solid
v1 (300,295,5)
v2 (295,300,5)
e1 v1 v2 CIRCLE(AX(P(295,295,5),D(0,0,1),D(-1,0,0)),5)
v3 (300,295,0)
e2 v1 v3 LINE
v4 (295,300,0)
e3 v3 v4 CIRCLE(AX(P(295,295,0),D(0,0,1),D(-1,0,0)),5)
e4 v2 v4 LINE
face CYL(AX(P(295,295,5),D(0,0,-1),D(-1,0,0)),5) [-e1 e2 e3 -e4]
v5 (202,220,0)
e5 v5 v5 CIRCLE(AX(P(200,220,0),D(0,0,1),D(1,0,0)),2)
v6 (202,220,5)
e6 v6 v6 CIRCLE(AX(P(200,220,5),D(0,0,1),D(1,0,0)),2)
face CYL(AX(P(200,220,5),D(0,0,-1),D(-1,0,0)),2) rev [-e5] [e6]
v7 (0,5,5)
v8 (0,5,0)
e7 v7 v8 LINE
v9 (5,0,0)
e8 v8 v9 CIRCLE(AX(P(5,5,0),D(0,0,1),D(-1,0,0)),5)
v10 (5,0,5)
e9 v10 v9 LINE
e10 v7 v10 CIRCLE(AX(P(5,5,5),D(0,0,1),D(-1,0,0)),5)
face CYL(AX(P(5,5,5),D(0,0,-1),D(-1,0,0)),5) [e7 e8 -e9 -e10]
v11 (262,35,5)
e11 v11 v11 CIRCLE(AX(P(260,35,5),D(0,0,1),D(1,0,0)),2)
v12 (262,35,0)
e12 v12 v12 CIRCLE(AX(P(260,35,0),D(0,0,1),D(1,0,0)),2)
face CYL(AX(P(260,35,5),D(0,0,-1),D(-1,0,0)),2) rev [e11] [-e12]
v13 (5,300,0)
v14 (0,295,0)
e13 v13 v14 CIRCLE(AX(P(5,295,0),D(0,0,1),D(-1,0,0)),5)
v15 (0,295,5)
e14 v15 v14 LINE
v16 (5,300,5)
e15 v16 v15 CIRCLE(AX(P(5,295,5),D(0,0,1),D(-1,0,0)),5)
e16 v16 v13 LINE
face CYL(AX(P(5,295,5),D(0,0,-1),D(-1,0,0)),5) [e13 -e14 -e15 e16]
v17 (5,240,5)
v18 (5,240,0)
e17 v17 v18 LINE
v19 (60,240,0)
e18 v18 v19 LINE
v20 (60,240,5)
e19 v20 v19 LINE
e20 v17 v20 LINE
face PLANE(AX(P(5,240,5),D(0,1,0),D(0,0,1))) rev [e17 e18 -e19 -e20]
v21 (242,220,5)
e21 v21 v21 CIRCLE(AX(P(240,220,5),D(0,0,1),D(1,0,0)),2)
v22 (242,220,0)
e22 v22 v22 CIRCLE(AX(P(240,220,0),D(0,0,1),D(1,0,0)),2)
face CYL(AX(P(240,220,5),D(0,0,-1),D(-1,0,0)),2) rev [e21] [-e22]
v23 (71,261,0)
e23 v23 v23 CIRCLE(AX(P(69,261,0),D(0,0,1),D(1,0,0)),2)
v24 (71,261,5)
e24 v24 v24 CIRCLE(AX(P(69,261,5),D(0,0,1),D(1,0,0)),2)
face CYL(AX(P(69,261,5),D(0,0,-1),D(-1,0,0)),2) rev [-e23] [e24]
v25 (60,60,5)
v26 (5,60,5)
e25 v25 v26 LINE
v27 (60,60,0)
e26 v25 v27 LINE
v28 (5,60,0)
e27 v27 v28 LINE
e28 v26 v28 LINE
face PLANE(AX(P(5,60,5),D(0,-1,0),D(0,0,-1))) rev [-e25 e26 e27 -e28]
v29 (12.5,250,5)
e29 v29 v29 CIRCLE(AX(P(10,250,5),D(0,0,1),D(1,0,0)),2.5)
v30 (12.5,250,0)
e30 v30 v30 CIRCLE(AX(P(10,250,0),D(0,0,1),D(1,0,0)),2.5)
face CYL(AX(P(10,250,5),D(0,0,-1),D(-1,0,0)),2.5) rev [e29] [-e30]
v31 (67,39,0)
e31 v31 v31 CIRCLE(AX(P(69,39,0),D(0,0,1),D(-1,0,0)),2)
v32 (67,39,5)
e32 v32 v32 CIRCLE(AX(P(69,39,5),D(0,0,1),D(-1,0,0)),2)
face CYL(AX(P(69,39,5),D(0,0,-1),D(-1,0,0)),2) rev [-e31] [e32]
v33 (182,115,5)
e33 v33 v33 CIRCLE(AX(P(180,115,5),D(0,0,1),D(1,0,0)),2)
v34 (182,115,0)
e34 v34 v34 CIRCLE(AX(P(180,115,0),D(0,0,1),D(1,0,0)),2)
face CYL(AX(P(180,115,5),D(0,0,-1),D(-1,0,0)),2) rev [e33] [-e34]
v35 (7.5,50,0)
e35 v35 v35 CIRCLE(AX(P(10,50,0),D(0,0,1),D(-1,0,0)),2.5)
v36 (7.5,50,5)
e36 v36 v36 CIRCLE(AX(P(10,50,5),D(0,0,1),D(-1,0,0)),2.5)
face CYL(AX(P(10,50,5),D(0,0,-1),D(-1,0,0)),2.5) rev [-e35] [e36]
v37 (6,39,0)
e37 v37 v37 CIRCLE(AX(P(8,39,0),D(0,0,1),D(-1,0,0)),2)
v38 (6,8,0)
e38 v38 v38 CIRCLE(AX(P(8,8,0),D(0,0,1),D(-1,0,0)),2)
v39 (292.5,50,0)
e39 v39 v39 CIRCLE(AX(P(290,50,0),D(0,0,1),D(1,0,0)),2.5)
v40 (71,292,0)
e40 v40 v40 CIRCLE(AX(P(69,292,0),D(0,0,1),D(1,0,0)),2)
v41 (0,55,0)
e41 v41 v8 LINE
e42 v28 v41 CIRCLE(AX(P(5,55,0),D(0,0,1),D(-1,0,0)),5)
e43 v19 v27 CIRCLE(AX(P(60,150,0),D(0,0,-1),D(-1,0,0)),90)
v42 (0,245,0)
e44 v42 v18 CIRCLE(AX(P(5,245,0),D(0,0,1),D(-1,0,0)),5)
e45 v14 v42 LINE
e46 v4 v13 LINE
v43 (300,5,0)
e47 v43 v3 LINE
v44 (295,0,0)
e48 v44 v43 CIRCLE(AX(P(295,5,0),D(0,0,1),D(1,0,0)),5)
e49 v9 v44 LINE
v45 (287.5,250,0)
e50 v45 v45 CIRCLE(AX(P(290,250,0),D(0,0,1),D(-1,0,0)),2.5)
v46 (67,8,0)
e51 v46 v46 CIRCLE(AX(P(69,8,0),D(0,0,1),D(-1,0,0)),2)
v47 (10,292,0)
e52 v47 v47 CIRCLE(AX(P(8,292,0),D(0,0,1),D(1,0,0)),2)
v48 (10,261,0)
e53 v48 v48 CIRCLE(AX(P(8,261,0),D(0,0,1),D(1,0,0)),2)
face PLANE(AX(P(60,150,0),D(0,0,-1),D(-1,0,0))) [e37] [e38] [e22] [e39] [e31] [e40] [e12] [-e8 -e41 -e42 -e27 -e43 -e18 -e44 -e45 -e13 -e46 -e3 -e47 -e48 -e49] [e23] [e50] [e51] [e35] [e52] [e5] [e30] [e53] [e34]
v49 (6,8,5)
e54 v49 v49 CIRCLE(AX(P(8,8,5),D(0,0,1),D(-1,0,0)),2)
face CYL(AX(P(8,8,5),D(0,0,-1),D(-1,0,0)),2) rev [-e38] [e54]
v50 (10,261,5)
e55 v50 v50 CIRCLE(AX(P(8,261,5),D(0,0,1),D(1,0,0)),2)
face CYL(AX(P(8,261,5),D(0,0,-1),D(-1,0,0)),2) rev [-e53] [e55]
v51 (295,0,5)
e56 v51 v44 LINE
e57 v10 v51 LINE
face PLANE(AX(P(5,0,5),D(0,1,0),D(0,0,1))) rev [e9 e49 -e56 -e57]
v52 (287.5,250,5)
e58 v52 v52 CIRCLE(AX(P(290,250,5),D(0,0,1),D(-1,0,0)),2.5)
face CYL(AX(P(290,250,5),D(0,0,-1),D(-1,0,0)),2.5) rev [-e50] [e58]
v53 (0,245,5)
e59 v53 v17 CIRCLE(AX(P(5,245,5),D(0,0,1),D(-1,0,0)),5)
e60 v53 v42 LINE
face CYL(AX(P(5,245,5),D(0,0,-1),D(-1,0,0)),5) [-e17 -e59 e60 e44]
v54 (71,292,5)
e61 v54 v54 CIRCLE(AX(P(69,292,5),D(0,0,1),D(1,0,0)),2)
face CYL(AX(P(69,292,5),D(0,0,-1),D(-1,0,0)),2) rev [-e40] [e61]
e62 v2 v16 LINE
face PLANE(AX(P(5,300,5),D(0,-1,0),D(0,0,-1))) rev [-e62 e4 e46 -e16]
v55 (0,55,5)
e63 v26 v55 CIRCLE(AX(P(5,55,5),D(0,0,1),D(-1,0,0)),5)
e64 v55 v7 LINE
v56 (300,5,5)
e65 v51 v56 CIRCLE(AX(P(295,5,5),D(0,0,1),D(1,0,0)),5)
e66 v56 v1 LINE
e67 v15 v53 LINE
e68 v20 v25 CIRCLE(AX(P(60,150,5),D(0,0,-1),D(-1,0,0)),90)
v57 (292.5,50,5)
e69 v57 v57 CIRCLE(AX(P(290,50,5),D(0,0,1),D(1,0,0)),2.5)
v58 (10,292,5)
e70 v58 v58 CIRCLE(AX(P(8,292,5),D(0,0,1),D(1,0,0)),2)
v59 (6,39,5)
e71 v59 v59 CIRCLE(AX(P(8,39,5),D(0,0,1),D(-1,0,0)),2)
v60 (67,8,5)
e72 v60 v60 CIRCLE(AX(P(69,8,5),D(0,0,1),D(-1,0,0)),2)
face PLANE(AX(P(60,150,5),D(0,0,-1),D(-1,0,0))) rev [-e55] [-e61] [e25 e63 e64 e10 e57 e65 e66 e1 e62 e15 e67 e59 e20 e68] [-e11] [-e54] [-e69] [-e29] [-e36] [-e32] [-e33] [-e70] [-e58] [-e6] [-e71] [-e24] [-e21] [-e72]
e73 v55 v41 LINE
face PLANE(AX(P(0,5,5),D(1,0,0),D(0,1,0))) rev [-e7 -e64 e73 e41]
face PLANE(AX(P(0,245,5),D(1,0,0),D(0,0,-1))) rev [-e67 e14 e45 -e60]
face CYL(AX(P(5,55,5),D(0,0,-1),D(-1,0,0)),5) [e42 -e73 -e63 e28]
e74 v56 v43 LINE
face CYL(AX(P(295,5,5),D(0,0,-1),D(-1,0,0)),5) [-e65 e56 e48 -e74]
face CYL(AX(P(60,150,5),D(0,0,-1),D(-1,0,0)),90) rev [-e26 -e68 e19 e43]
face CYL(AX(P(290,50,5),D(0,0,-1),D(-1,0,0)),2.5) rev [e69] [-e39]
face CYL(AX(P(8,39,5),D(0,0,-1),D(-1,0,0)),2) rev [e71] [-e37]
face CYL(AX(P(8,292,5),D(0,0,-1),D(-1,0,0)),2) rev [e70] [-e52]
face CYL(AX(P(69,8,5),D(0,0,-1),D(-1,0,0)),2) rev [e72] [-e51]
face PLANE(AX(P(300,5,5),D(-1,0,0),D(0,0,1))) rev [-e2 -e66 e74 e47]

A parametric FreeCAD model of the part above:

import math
import FreeCAD as App
import Part
import Sketcher
from FreeCAD import Vector

doc = App.newDocument("Part")
body = doc.addObject("PartDesign::Body", "Body")

# Sketch on XY plane
sketch1 = body.newObject("Sketcher::SketchObject", "Sketch")
sketch1.AttachmentSupport = (doc.getObject("XY_Plane"), [""])
sketch1.MapMode = "FlatFace"
sketch1.addGeometry([
    Part.LineSegment(Vector(5, 0, 0), Vector(295, 0, 0)),  # 0
    Part.ArcOfCircle(Part.Circle(Vector(295, 5, 0), Vector(0, 0, 1), 5), math.radians(-90), math.radians(0)),  # 1
    Part.LineSegment(Vector(300, 5, 0), Vector(300, 295, 0)),  # 2
    Part.ArcOfCircle(Part.Circle(Vector(295, 295, 0), Vector(0, 0, 1), 5), math.radians(0), math.radians(90)),  # 3
    Part.LineSegment(Vector(295, 300, 0), Vector(5, 300, 0)),  # 4
    Part.ArcOfCircle(Part.Circle(Vector(5, 295, 0), Vector(0, 0, 1), 5), math.radians(90), math.radians(180)),  # 5
    Part.LineSegment(Vector(0, 295, 0), Vector(0, 245, 0)),  # 6
    Part.ArcOfCircle(Part.Circle(Vector(5, 245, 0), Vector(0, 0, 1), 5), math.radians(180), math.radians(270)),  # 7
    Part.LineSegment(Vector(5, 240, 0), Vector(60, 240, 0)),  # 8
    Part.ArcOfCircle(Part.Circle(Vector(60, 150, 0), Vector(0, 0, 1), 90), math.radians(-90), math.radians(90)),  # 9
    Part.LineSegment(Vector(60, 60, 0), Vector(5, 60, 0)),  # 10
    Part.ArcOfCircle(Part.Circle(Vector(5, 55, 0), Vector(0, 0, 1), 5), math.radians(90), math.radians(180)),  # 11
    Part.LineSegment(Vector(0, 55, 0), Vector(0, 5, 0)),  # 12
    Part.ArcOfCircle(Part.Circle(Vector(5, 5, 0), Vector(0, 0, 1), 5), math.radians(180), math.radians(270)),  # 13
    Part.Circle(Vector(8, 8, 0), Vector(0, 0, 1), 2),  # 14
    Part.Circle(Vector(8, 39, 0), Vector(0, 0, 1), 2),  # 15
    Part.Circle(Vector(69, 8, 0), Vector(0, 0, 1), 2),  # 16
    Part.Circle(Vector(69, 39, 0), Vector(0, 0, 1), 2),  # 17
    Part.Circle(Vector(10, 50, 0), Vector(0, 0, 1), 2.5),  # 18
    Part.Circle(Vector(260, 35, 0), Vector(0, 0, 1), 2),  # 19
    Part.Circle(Vector(290, 50, 0), Vector(0, 0, 1), 2.5),  # 20
    Part.Circle(Vector(180, 115, 0), Vector(0, 0, 1), 2),  # 21
    Part.Circle(Vector(10, 250, 0), Vector(0, 0, 1), 2.5),  # 22
    Part.Circle(Vector(8, 261, 0), Vector(0, 0, 1), 2),  # 23
    Part.Circle(Vector(8, 292, 0), Vector(0, 0, 1), 2),  # 24
    Part.Circle(Vector(69, 261, 0), Vector(0, 0, 1), 2),  # 25
    Part.Circle(Vector(69, 292, 0), Vector(0, 0, 1), 2),  # 26
    Part.Circle(Vector(200, 220, 0), Vector(0, 0, 1), 2),  # 27
    Part.Circle(Vector(240, 220, 0), Vector(0, 0, 1), 2),  # 28
    Part.Circle(Vector(290, 250, 0), Vector(0, 0, 1), 2.5),  # 29
], False)
sketch1.addConstraint([
    Sketcher.Constraint("Tangent", 0, 2, 1, 1),
    Sketcher.Constraint("Tangent", 1, 2, 2, 1),
    Sketcher.Constraint("Tangent", 2, 2, 3, 1),
    Sketcher.Constraint("Tangent", 3, 2, 4, 1),
    Sketcher.Constraint("Tangent", 4, 2, 5, 1),
    Sketcher.Constraint("Tangent", 5, 2, 6, 1),
    Sketcher.Constraint("Tangent", 6, 2, 7, 1),
    Sketcher.Constraint("Tangent", 7, 2, 8, 1),
    Sketcher.Constraint("Tangent", 8, 2, 9, 2),
    Sketcher.Constraint("Tangent", 9, 1, 10, 1),
    Sketcher.Constraint("Tangent", 10, 2, 11, 1),
    Sketcher.Constraint("Tangent", 11, 2, 12, 1),
    Sketcher.Constraint("Tangent", 12, 2, 13, 1),
    Sketcher.Constraint("Tangent", 13, 2, 0, 1),
    Sketcher.Constraint("Horizontal", 0),
    Sketcher.Constraint("Vertical", 2),
    Sketcher.Constraint("Horizontal", 4),
    Sketcher.Constraint("Vertical", 6),
    Sketcher.Constraint("Horizontal", 8),
    Sketcher.Constraint("Horizontal", 10),
    Sketcher.Constraint("Vertical", 12),
    Sketcher.Constraint("Equal", 1, 3),
    Sketcher.Constraint("Equal", 3, 5),
    Sketcher.Constraint("Equal", 5, 7),
    Sketcher.Constraint("Equal", 7, 11),
    Sketcher.Constraint("Equal", 11, 13),
    Sketcher.Constraint("Equal", 14, 15),
    Sketcher.Constraint("Equal", 15, 16),
    Sketcher.Constraint("Equal", 16, 17),
    Sketcher.Constraint("Equal", 17, 19),
    Sketcher.Constraint("Equal", 18, 20),
    Sketcher.Constraint("Equal", 19, 21),
    Sketcher.Constraint("Equal", 20, 22),
    Sketcher.Constraint("Equal", 21, 23),
    Sketcher.Constraint("Equal", 23, 24),
    Sketcher.Constraint("Equal", 24, 25),
    Sketcher.Constraint("Equal", 25, 26),
    Sketcher.Constraint("Equal", 26, 27),
    Sketcher.Constraint("Equal", 27, 28),
    Sketcher.Constraint("Equal", 22, 29),
    Sketcher.Constraint("PointOnObject", 0, 2, -1),
    Sketcher.Constraint("PointOnObject", 5, 2, -2),
    Sketcher.Constraint("PointOnObject", 11, 2, -2),
    Sketcher.Constraint("Horizontal", 14, 3, 16, 3),
    Sketcher.Constraint("Horizontal", 15, 3, 17, 3),
    Sketcher.Constraint("Horizontal", 18, 3, 20, 3),
    Sketcher.Constraint("Horizontal", 23, 3, 25, 3),
    Sketcher.Constraint("Horizontal", 24, 3, 26, 3),
    Sketcher.Constraint("Horizontal", 27, 3, 28, 3),
    Sketcher.Constraint("Horizontal", 22, 3, 29, 3),
    Sketcher.Constraint("Vertical", 14, 3, 15, 3),
    Sketcher.Constraint("Vertical", 16, 3, 17, 3),
    Sketcher.Constraint("Vertical", 18, 3, 22, 3),
    Sketcher.Constraint("Vertical", 15, 3, 23, 3),
    Sketcher.Constraint("Vertical", 23, 3, 24, 3),
    Sketcher.Constraint("Vertical", 17, 3, 25, 3),
    Sketcher.Constraint("Vertical", 25, 3, 26, 3),
    Sketcher.Constraint("Vertical", 20, 3, 29, 3),
    Sketcher.Constraint("Equal", 4, 2),
    Sketcher.Constraint("Equal", 6, 12),
    Sketcher.Constraint("Diameter", 14, 4.0),
    Sketcher.Constraint("Diameter", 18, 5.0),
    Sketcher.Constraint("Radius", 1, 5.0),
    Sketcher.Constraint("Radius", 9, 90.0),
    Sketcher.Constraint("DistanceX", 0, 1, 0, 2, 290.0),
    Sketcher.Constraint("DistanceX", 8, 1, 8, 2, 55.0),
    Sketcher.Constraint("DistanceX", -1, 1, 14, 3, 8.0),
    Sketcher.Constraint("DistanceY", -1, 1, 14, 3, 8.0),
    Sketcher.Constraint("DistanceY", -1, 1, 15, 3, 39.0),
    Sketcher.Constraint("DistanceX", -1, 1, 16, 3, 69.0),
    Sketcher.Constraint("DistanceX", -1, 1, 18, 3, 10.0),
    Sketcher.Constraint("DistanceY", -1, 1, 18, 3, 50.0),
    Sketcher.Constraint("DistanceX", -1, 1, 19, 3, 260.0),
    Sketcher.Constraint("DistanceY", -1, 1, 19, 3, 35.0),
    Sketcher.Constraint("DistanceX", -1, 1, 20, 3, 290.0),
    Sketcher.Constraint("DistanceX", -1, 1, 21, 3, 180.0),
    Sketcher.Constraint("DistanceY", -1, 1, 21, 3, 115.0),
    Sketcher.Constraint("DistanceY", -1, 1, 22, 3, 250.0),
    Sketcher.Constraint("DistanceY", -1, 1, 23, 3, 261.0),
    Sketcher.Constraint("DistanceY", -1, 1, 24, 3, 292.0),
    Sketcher.Constraint("DistanceX", -1, 1, 27, 3, 200.0),
    Sketcher.Constraint("DistanceY", -1, 1, 27, 3, 220.0),
    Sketcher.Constraint("DistanceX", -1, 1, 28, 3, 240.0),
])
pad1 = body.newObject("PartDesign::Pad", "Pad")
pad1.Profile = sketch1
pad1.Length = 5

doc.recompute()
